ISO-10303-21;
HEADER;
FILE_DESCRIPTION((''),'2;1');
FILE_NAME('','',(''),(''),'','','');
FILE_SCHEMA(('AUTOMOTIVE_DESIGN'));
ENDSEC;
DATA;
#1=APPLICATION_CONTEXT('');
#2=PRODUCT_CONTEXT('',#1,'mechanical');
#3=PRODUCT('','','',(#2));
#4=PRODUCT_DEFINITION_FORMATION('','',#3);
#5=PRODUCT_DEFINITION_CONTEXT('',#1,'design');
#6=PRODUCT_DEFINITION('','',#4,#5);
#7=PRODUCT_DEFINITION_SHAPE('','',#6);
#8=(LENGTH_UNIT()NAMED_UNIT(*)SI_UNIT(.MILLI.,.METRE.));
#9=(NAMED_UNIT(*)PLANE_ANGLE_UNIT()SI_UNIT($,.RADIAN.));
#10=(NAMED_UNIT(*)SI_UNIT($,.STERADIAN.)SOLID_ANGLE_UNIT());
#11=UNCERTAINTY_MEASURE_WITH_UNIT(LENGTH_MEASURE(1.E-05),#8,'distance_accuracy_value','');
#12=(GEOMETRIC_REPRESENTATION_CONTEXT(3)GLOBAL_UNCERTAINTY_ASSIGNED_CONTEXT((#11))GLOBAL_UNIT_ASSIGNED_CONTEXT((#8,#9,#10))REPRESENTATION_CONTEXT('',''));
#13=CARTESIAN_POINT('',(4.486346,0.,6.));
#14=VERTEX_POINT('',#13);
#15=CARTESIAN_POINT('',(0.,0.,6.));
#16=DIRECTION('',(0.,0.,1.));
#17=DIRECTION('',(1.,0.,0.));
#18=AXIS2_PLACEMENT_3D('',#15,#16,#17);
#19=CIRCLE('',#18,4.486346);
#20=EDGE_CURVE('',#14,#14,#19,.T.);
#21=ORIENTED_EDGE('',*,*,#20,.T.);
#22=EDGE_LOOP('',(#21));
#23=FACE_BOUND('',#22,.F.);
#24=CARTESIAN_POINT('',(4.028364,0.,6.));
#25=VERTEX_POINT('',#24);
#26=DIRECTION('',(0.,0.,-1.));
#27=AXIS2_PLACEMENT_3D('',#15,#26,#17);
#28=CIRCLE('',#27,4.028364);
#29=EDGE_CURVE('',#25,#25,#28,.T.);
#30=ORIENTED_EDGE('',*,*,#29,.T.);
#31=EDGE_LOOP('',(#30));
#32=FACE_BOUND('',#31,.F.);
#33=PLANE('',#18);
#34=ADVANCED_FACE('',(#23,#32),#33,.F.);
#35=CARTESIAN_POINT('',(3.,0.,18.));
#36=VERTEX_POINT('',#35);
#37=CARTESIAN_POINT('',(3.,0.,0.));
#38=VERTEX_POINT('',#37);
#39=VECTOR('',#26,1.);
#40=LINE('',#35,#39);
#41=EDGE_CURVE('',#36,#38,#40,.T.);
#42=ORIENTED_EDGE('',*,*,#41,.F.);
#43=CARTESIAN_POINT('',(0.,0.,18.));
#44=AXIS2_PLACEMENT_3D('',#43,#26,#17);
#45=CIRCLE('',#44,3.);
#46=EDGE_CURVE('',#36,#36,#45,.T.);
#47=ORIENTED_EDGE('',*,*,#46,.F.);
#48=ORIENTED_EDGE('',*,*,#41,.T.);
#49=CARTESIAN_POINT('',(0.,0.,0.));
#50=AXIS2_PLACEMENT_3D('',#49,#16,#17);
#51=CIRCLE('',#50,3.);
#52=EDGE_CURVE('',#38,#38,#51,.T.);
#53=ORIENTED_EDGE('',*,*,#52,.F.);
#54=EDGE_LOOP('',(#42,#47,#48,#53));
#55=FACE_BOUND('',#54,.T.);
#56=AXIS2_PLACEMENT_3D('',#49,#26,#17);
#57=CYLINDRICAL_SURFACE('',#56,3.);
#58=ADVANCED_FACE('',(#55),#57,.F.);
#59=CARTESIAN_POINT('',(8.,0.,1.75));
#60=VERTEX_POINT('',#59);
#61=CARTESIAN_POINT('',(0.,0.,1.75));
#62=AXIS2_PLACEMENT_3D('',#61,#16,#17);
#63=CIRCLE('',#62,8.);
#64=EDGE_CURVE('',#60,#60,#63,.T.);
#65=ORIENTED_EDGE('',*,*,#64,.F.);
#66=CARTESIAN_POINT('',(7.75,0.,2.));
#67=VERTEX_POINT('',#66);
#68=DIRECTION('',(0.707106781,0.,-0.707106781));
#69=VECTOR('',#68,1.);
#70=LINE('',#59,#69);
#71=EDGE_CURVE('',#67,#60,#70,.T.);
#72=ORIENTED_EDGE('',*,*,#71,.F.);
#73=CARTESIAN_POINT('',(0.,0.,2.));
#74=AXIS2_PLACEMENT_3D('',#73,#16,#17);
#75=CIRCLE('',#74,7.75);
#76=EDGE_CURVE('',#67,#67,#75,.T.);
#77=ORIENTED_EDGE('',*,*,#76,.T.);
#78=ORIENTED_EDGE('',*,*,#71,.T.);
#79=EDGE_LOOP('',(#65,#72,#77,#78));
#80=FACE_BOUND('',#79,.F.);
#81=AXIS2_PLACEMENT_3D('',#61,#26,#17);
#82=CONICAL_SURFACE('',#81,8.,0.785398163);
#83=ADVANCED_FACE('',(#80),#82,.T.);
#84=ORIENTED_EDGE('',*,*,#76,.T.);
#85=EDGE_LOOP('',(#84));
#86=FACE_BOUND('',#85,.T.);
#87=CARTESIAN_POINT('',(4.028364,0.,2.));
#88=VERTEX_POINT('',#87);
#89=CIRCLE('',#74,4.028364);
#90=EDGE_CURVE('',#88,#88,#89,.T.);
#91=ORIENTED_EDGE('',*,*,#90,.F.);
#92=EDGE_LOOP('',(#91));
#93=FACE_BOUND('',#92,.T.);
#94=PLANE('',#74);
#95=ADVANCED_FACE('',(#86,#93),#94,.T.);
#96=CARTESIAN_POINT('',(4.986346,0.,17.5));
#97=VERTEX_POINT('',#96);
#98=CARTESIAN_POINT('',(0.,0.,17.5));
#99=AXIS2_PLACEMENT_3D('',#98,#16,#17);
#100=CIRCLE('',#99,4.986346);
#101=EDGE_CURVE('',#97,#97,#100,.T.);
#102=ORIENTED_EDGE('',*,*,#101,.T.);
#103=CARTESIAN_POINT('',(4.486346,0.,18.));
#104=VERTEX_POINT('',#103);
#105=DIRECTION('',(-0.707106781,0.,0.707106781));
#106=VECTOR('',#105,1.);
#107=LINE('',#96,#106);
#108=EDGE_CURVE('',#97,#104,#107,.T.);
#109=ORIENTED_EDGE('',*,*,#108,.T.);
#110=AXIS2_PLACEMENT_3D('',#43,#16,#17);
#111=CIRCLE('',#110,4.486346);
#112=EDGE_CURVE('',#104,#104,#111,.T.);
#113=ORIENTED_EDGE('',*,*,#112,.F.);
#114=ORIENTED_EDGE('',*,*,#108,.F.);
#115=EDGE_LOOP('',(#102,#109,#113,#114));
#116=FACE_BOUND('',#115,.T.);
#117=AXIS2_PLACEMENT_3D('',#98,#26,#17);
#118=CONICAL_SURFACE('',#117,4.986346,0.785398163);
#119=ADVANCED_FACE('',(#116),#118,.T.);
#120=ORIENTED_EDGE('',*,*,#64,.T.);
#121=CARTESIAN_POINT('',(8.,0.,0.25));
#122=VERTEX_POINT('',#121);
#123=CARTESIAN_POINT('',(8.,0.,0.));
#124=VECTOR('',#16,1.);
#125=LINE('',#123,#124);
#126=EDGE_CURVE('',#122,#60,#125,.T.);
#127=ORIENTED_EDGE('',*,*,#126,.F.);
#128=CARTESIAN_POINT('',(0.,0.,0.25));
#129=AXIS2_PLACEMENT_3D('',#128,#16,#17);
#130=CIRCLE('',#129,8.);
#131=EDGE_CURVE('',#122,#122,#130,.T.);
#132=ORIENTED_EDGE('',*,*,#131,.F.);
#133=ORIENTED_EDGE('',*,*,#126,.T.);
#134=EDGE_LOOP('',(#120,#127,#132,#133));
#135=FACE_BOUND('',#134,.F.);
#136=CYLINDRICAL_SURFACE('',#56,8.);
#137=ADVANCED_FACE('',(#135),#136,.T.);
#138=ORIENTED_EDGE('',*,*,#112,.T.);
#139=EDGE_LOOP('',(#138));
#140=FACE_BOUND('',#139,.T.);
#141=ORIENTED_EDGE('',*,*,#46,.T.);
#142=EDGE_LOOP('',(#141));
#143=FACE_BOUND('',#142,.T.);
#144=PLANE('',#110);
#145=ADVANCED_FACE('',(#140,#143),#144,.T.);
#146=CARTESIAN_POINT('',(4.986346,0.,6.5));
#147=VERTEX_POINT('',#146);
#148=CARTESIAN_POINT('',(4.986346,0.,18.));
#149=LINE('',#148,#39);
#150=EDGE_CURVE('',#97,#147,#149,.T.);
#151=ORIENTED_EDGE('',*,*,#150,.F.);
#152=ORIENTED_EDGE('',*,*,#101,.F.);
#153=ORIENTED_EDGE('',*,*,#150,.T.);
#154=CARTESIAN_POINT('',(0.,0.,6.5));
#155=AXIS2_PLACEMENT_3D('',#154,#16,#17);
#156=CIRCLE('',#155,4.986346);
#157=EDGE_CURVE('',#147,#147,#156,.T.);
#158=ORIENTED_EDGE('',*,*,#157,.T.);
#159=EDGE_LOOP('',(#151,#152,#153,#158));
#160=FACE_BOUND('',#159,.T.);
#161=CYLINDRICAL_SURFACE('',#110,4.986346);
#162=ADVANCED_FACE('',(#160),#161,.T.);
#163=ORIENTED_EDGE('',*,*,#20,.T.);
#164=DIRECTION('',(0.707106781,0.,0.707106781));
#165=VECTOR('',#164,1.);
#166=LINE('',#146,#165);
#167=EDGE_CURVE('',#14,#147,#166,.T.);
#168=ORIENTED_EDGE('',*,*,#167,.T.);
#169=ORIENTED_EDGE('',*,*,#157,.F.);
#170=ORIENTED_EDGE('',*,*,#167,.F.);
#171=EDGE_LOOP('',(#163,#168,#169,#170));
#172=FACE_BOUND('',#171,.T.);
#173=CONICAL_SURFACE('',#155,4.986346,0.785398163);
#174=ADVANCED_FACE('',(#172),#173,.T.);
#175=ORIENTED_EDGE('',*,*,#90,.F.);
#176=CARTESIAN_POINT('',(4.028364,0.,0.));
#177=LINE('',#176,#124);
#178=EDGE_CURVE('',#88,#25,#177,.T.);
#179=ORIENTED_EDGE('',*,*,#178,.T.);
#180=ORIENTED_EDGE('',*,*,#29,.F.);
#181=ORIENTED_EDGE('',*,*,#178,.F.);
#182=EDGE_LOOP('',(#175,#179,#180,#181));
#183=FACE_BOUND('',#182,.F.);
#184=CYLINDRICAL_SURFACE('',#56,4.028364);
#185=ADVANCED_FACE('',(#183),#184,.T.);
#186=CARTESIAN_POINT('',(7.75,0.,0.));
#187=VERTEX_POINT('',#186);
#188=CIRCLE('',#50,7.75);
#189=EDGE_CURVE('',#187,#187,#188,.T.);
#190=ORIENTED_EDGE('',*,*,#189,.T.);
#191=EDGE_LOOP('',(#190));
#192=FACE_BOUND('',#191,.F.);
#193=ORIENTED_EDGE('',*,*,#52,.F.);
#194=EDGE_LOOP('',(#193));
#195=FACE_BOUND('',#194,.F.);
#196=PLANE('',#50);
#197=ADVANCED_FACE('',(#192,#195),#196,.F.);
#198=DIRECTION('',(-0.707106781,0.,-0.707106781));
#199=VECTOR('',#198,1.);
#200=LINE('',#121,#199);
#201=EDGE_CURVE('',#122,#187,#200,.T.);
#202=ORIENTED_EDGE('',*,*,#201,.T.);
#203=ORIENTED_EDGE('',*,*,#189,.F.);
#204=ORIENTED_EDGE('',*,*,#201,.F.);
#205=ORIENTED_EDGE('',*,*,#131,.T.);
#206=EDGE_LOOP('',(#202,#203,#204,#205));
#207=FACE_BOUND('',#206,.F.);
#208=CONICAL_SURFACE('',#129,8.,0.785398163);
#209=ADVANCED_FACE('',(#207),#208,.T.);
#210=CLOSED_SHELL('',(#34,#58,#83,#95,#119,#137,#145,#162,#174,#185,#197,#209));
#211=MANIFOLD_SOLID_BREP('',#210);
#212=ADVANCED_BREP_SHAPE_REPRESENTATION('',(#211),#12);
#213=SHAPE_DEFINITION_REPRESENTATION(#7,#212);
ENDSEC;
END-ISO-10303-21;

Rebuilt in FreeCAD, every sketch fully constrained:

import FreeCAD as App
import Part
import Sketcher
from FreeCAD import Vector


def edges_at(feature, points):
    """Names of the edges that pass closest to the given points."""
    edges = feature.Shape.Edges
    near = lambda p: min(range(len(edges)), key=lambda i: edges[i].distToShape(Part.Vertex(*p))[0])
    return sorted({f"Edge{near(p) + 1}" for p in points})

doc = App.newDocument("Part")
body = doc.addObject("PartDesign::Body", "Body")

sketch1 = doc.addObject("Sketcher::SketchObject", "Sketch")
body.addObject(sketch1)
sketch1.AttachmentSupport = (doc.XY_Plane, [""])
sketch1.MapMode = "FlatFace"
sketch1.addGeometry(Part.Circle(Vector(0, 0, 0), Vector(0, 0, 1), 8), False)
sketch1.addGeometry(Part.Circle(Vector(0, 0, 0), Vector(0, 0, 1), 4.028364), False)
sketch1.addConstraint(Sketcher.Constraint("Coincident", 0, 3, -1, 1))
sketch1.addConstraint(Sketcher.Constraint("Coincident", 1, 3, -1, 1))
sketch1.addConstraint(Sketcher.Constraint("Diameter", 0, 16.0))
sketch1.addConstraint(Sketcher.Constraint("Diameter", 1, 8.056728))
pad1 = doc.addObject("PartDesign::Pad", "Pad")
body.addObject(pad1)
pad1.Profile = sketch1
pad1.Length = 2

sketch2 = doc.addObject("Sketcher::SketchObject", "Sketch001")
body.addObject(sketch2)
sketch2.AttachmentSupport = (doc.XY_Plane, [""])
sketch2.MapMode = "FlatFace"
sketch2.addGeometry(Part.Circle(Vector(0, 0, 0), Vector(0, 0, 1), 4.028364), False)
sketch2.addGeometry(Part.Circle(Vector(0, 0, 0), Vector(0, 0, 1), 3), False)
sketch2.addConstraint(Sketcher.Constraint("Coincident", 0, 3, -1, 1))
sketch2.addConstraint(Sketcher.Constraint("Coincident", 1, 3, -1, 1))
sketch2.addConstraint(Sketcher.Constraint("Diameter", 1, 6.0))
sketch2.addConstraint(Sketcher.Constraint("Diameter", 0, 8.056728))
pad2 = doc.addObject("PartDesign::Pad", "Pad001")
body.addObject(pad2)
pad2.Profile = sketch2
pad2.Length = 18

sketch3 = doc.addObject("Sketcher::SketchObject", "Sketch002")
body.addObject(sketch3)
sketch3.AttachmentSupport = (doc.XY_Plane, [""])
sketch3.MapMode = "FlatFace"
sketch3.AttachmentOffset = App.Placement(Vector(0, 0, 18), App.Rotation())
sketch3.addGeometry(Part.Circle(Vector(0, 0, 0), Vector(0, 0, 1), 4.986346), False)
sketch3.addConstraint(Sketcher.Constraint("Coincident", 0, 3, -1, 1))
sketch3.addConstraint(Sketcher.Constraint("Diameter", 0, 9.972692))
pad3 = doc.addObject("PartDesign::Pad", "Pad002")
body.addObject(pad3)
pad3.Profile = sketch3
pad3.Length = 12
pad3.Reversed = True

sketch4 = doc.addObject("Sketcher::SketchObject", "Sketch003")
body.addObject(sketch4)
sketch4.AttachmentSupport = (doc.XY_Plane, [""])
sketch4.MapMode = "FlatFace"
sketch4.addGeometry(Part.Circle(Vector(0, 0, 0), Vector(0, 0, 1), 3), False)
sketch4.addConstraint(Sketcher.Constraint("Coincident", 0, 3, -1, 1))
sketch4.addConstraint(Sketcher.Constraint("Diameter", 0, 6.0))
pocket1 = doc.addObject("PartDesign::Pocket", "Pocket")
body.addObject(pocket1)
pocket1.Profile = sketch4
pocket1.Length = 44.1
pocket1.Reversed = True
doc.recompute()

chamfer = doc.addObject("PartDesign::Chamfer", "Chamfer")
body.addObject(chamfer)
chamfer.Base = (pocket1, edges_at(pocket1, [(8, 0, 1), (-8, 0, 0), (-8, 0, 2)]))
chamfer.Size = 0.25
doc.recompute()

chamfer2 = doc.addObject("PartDesign::Chamfer", "Chamfer001")
body.addObject(chamfer2)
chamfer2.Base = (chamfer, edges_at(chamfer, [(-4.986, 0, 6), (-4.986, 0, 18)]))
chamfer2.Size = 0.5

doc.recompute()
